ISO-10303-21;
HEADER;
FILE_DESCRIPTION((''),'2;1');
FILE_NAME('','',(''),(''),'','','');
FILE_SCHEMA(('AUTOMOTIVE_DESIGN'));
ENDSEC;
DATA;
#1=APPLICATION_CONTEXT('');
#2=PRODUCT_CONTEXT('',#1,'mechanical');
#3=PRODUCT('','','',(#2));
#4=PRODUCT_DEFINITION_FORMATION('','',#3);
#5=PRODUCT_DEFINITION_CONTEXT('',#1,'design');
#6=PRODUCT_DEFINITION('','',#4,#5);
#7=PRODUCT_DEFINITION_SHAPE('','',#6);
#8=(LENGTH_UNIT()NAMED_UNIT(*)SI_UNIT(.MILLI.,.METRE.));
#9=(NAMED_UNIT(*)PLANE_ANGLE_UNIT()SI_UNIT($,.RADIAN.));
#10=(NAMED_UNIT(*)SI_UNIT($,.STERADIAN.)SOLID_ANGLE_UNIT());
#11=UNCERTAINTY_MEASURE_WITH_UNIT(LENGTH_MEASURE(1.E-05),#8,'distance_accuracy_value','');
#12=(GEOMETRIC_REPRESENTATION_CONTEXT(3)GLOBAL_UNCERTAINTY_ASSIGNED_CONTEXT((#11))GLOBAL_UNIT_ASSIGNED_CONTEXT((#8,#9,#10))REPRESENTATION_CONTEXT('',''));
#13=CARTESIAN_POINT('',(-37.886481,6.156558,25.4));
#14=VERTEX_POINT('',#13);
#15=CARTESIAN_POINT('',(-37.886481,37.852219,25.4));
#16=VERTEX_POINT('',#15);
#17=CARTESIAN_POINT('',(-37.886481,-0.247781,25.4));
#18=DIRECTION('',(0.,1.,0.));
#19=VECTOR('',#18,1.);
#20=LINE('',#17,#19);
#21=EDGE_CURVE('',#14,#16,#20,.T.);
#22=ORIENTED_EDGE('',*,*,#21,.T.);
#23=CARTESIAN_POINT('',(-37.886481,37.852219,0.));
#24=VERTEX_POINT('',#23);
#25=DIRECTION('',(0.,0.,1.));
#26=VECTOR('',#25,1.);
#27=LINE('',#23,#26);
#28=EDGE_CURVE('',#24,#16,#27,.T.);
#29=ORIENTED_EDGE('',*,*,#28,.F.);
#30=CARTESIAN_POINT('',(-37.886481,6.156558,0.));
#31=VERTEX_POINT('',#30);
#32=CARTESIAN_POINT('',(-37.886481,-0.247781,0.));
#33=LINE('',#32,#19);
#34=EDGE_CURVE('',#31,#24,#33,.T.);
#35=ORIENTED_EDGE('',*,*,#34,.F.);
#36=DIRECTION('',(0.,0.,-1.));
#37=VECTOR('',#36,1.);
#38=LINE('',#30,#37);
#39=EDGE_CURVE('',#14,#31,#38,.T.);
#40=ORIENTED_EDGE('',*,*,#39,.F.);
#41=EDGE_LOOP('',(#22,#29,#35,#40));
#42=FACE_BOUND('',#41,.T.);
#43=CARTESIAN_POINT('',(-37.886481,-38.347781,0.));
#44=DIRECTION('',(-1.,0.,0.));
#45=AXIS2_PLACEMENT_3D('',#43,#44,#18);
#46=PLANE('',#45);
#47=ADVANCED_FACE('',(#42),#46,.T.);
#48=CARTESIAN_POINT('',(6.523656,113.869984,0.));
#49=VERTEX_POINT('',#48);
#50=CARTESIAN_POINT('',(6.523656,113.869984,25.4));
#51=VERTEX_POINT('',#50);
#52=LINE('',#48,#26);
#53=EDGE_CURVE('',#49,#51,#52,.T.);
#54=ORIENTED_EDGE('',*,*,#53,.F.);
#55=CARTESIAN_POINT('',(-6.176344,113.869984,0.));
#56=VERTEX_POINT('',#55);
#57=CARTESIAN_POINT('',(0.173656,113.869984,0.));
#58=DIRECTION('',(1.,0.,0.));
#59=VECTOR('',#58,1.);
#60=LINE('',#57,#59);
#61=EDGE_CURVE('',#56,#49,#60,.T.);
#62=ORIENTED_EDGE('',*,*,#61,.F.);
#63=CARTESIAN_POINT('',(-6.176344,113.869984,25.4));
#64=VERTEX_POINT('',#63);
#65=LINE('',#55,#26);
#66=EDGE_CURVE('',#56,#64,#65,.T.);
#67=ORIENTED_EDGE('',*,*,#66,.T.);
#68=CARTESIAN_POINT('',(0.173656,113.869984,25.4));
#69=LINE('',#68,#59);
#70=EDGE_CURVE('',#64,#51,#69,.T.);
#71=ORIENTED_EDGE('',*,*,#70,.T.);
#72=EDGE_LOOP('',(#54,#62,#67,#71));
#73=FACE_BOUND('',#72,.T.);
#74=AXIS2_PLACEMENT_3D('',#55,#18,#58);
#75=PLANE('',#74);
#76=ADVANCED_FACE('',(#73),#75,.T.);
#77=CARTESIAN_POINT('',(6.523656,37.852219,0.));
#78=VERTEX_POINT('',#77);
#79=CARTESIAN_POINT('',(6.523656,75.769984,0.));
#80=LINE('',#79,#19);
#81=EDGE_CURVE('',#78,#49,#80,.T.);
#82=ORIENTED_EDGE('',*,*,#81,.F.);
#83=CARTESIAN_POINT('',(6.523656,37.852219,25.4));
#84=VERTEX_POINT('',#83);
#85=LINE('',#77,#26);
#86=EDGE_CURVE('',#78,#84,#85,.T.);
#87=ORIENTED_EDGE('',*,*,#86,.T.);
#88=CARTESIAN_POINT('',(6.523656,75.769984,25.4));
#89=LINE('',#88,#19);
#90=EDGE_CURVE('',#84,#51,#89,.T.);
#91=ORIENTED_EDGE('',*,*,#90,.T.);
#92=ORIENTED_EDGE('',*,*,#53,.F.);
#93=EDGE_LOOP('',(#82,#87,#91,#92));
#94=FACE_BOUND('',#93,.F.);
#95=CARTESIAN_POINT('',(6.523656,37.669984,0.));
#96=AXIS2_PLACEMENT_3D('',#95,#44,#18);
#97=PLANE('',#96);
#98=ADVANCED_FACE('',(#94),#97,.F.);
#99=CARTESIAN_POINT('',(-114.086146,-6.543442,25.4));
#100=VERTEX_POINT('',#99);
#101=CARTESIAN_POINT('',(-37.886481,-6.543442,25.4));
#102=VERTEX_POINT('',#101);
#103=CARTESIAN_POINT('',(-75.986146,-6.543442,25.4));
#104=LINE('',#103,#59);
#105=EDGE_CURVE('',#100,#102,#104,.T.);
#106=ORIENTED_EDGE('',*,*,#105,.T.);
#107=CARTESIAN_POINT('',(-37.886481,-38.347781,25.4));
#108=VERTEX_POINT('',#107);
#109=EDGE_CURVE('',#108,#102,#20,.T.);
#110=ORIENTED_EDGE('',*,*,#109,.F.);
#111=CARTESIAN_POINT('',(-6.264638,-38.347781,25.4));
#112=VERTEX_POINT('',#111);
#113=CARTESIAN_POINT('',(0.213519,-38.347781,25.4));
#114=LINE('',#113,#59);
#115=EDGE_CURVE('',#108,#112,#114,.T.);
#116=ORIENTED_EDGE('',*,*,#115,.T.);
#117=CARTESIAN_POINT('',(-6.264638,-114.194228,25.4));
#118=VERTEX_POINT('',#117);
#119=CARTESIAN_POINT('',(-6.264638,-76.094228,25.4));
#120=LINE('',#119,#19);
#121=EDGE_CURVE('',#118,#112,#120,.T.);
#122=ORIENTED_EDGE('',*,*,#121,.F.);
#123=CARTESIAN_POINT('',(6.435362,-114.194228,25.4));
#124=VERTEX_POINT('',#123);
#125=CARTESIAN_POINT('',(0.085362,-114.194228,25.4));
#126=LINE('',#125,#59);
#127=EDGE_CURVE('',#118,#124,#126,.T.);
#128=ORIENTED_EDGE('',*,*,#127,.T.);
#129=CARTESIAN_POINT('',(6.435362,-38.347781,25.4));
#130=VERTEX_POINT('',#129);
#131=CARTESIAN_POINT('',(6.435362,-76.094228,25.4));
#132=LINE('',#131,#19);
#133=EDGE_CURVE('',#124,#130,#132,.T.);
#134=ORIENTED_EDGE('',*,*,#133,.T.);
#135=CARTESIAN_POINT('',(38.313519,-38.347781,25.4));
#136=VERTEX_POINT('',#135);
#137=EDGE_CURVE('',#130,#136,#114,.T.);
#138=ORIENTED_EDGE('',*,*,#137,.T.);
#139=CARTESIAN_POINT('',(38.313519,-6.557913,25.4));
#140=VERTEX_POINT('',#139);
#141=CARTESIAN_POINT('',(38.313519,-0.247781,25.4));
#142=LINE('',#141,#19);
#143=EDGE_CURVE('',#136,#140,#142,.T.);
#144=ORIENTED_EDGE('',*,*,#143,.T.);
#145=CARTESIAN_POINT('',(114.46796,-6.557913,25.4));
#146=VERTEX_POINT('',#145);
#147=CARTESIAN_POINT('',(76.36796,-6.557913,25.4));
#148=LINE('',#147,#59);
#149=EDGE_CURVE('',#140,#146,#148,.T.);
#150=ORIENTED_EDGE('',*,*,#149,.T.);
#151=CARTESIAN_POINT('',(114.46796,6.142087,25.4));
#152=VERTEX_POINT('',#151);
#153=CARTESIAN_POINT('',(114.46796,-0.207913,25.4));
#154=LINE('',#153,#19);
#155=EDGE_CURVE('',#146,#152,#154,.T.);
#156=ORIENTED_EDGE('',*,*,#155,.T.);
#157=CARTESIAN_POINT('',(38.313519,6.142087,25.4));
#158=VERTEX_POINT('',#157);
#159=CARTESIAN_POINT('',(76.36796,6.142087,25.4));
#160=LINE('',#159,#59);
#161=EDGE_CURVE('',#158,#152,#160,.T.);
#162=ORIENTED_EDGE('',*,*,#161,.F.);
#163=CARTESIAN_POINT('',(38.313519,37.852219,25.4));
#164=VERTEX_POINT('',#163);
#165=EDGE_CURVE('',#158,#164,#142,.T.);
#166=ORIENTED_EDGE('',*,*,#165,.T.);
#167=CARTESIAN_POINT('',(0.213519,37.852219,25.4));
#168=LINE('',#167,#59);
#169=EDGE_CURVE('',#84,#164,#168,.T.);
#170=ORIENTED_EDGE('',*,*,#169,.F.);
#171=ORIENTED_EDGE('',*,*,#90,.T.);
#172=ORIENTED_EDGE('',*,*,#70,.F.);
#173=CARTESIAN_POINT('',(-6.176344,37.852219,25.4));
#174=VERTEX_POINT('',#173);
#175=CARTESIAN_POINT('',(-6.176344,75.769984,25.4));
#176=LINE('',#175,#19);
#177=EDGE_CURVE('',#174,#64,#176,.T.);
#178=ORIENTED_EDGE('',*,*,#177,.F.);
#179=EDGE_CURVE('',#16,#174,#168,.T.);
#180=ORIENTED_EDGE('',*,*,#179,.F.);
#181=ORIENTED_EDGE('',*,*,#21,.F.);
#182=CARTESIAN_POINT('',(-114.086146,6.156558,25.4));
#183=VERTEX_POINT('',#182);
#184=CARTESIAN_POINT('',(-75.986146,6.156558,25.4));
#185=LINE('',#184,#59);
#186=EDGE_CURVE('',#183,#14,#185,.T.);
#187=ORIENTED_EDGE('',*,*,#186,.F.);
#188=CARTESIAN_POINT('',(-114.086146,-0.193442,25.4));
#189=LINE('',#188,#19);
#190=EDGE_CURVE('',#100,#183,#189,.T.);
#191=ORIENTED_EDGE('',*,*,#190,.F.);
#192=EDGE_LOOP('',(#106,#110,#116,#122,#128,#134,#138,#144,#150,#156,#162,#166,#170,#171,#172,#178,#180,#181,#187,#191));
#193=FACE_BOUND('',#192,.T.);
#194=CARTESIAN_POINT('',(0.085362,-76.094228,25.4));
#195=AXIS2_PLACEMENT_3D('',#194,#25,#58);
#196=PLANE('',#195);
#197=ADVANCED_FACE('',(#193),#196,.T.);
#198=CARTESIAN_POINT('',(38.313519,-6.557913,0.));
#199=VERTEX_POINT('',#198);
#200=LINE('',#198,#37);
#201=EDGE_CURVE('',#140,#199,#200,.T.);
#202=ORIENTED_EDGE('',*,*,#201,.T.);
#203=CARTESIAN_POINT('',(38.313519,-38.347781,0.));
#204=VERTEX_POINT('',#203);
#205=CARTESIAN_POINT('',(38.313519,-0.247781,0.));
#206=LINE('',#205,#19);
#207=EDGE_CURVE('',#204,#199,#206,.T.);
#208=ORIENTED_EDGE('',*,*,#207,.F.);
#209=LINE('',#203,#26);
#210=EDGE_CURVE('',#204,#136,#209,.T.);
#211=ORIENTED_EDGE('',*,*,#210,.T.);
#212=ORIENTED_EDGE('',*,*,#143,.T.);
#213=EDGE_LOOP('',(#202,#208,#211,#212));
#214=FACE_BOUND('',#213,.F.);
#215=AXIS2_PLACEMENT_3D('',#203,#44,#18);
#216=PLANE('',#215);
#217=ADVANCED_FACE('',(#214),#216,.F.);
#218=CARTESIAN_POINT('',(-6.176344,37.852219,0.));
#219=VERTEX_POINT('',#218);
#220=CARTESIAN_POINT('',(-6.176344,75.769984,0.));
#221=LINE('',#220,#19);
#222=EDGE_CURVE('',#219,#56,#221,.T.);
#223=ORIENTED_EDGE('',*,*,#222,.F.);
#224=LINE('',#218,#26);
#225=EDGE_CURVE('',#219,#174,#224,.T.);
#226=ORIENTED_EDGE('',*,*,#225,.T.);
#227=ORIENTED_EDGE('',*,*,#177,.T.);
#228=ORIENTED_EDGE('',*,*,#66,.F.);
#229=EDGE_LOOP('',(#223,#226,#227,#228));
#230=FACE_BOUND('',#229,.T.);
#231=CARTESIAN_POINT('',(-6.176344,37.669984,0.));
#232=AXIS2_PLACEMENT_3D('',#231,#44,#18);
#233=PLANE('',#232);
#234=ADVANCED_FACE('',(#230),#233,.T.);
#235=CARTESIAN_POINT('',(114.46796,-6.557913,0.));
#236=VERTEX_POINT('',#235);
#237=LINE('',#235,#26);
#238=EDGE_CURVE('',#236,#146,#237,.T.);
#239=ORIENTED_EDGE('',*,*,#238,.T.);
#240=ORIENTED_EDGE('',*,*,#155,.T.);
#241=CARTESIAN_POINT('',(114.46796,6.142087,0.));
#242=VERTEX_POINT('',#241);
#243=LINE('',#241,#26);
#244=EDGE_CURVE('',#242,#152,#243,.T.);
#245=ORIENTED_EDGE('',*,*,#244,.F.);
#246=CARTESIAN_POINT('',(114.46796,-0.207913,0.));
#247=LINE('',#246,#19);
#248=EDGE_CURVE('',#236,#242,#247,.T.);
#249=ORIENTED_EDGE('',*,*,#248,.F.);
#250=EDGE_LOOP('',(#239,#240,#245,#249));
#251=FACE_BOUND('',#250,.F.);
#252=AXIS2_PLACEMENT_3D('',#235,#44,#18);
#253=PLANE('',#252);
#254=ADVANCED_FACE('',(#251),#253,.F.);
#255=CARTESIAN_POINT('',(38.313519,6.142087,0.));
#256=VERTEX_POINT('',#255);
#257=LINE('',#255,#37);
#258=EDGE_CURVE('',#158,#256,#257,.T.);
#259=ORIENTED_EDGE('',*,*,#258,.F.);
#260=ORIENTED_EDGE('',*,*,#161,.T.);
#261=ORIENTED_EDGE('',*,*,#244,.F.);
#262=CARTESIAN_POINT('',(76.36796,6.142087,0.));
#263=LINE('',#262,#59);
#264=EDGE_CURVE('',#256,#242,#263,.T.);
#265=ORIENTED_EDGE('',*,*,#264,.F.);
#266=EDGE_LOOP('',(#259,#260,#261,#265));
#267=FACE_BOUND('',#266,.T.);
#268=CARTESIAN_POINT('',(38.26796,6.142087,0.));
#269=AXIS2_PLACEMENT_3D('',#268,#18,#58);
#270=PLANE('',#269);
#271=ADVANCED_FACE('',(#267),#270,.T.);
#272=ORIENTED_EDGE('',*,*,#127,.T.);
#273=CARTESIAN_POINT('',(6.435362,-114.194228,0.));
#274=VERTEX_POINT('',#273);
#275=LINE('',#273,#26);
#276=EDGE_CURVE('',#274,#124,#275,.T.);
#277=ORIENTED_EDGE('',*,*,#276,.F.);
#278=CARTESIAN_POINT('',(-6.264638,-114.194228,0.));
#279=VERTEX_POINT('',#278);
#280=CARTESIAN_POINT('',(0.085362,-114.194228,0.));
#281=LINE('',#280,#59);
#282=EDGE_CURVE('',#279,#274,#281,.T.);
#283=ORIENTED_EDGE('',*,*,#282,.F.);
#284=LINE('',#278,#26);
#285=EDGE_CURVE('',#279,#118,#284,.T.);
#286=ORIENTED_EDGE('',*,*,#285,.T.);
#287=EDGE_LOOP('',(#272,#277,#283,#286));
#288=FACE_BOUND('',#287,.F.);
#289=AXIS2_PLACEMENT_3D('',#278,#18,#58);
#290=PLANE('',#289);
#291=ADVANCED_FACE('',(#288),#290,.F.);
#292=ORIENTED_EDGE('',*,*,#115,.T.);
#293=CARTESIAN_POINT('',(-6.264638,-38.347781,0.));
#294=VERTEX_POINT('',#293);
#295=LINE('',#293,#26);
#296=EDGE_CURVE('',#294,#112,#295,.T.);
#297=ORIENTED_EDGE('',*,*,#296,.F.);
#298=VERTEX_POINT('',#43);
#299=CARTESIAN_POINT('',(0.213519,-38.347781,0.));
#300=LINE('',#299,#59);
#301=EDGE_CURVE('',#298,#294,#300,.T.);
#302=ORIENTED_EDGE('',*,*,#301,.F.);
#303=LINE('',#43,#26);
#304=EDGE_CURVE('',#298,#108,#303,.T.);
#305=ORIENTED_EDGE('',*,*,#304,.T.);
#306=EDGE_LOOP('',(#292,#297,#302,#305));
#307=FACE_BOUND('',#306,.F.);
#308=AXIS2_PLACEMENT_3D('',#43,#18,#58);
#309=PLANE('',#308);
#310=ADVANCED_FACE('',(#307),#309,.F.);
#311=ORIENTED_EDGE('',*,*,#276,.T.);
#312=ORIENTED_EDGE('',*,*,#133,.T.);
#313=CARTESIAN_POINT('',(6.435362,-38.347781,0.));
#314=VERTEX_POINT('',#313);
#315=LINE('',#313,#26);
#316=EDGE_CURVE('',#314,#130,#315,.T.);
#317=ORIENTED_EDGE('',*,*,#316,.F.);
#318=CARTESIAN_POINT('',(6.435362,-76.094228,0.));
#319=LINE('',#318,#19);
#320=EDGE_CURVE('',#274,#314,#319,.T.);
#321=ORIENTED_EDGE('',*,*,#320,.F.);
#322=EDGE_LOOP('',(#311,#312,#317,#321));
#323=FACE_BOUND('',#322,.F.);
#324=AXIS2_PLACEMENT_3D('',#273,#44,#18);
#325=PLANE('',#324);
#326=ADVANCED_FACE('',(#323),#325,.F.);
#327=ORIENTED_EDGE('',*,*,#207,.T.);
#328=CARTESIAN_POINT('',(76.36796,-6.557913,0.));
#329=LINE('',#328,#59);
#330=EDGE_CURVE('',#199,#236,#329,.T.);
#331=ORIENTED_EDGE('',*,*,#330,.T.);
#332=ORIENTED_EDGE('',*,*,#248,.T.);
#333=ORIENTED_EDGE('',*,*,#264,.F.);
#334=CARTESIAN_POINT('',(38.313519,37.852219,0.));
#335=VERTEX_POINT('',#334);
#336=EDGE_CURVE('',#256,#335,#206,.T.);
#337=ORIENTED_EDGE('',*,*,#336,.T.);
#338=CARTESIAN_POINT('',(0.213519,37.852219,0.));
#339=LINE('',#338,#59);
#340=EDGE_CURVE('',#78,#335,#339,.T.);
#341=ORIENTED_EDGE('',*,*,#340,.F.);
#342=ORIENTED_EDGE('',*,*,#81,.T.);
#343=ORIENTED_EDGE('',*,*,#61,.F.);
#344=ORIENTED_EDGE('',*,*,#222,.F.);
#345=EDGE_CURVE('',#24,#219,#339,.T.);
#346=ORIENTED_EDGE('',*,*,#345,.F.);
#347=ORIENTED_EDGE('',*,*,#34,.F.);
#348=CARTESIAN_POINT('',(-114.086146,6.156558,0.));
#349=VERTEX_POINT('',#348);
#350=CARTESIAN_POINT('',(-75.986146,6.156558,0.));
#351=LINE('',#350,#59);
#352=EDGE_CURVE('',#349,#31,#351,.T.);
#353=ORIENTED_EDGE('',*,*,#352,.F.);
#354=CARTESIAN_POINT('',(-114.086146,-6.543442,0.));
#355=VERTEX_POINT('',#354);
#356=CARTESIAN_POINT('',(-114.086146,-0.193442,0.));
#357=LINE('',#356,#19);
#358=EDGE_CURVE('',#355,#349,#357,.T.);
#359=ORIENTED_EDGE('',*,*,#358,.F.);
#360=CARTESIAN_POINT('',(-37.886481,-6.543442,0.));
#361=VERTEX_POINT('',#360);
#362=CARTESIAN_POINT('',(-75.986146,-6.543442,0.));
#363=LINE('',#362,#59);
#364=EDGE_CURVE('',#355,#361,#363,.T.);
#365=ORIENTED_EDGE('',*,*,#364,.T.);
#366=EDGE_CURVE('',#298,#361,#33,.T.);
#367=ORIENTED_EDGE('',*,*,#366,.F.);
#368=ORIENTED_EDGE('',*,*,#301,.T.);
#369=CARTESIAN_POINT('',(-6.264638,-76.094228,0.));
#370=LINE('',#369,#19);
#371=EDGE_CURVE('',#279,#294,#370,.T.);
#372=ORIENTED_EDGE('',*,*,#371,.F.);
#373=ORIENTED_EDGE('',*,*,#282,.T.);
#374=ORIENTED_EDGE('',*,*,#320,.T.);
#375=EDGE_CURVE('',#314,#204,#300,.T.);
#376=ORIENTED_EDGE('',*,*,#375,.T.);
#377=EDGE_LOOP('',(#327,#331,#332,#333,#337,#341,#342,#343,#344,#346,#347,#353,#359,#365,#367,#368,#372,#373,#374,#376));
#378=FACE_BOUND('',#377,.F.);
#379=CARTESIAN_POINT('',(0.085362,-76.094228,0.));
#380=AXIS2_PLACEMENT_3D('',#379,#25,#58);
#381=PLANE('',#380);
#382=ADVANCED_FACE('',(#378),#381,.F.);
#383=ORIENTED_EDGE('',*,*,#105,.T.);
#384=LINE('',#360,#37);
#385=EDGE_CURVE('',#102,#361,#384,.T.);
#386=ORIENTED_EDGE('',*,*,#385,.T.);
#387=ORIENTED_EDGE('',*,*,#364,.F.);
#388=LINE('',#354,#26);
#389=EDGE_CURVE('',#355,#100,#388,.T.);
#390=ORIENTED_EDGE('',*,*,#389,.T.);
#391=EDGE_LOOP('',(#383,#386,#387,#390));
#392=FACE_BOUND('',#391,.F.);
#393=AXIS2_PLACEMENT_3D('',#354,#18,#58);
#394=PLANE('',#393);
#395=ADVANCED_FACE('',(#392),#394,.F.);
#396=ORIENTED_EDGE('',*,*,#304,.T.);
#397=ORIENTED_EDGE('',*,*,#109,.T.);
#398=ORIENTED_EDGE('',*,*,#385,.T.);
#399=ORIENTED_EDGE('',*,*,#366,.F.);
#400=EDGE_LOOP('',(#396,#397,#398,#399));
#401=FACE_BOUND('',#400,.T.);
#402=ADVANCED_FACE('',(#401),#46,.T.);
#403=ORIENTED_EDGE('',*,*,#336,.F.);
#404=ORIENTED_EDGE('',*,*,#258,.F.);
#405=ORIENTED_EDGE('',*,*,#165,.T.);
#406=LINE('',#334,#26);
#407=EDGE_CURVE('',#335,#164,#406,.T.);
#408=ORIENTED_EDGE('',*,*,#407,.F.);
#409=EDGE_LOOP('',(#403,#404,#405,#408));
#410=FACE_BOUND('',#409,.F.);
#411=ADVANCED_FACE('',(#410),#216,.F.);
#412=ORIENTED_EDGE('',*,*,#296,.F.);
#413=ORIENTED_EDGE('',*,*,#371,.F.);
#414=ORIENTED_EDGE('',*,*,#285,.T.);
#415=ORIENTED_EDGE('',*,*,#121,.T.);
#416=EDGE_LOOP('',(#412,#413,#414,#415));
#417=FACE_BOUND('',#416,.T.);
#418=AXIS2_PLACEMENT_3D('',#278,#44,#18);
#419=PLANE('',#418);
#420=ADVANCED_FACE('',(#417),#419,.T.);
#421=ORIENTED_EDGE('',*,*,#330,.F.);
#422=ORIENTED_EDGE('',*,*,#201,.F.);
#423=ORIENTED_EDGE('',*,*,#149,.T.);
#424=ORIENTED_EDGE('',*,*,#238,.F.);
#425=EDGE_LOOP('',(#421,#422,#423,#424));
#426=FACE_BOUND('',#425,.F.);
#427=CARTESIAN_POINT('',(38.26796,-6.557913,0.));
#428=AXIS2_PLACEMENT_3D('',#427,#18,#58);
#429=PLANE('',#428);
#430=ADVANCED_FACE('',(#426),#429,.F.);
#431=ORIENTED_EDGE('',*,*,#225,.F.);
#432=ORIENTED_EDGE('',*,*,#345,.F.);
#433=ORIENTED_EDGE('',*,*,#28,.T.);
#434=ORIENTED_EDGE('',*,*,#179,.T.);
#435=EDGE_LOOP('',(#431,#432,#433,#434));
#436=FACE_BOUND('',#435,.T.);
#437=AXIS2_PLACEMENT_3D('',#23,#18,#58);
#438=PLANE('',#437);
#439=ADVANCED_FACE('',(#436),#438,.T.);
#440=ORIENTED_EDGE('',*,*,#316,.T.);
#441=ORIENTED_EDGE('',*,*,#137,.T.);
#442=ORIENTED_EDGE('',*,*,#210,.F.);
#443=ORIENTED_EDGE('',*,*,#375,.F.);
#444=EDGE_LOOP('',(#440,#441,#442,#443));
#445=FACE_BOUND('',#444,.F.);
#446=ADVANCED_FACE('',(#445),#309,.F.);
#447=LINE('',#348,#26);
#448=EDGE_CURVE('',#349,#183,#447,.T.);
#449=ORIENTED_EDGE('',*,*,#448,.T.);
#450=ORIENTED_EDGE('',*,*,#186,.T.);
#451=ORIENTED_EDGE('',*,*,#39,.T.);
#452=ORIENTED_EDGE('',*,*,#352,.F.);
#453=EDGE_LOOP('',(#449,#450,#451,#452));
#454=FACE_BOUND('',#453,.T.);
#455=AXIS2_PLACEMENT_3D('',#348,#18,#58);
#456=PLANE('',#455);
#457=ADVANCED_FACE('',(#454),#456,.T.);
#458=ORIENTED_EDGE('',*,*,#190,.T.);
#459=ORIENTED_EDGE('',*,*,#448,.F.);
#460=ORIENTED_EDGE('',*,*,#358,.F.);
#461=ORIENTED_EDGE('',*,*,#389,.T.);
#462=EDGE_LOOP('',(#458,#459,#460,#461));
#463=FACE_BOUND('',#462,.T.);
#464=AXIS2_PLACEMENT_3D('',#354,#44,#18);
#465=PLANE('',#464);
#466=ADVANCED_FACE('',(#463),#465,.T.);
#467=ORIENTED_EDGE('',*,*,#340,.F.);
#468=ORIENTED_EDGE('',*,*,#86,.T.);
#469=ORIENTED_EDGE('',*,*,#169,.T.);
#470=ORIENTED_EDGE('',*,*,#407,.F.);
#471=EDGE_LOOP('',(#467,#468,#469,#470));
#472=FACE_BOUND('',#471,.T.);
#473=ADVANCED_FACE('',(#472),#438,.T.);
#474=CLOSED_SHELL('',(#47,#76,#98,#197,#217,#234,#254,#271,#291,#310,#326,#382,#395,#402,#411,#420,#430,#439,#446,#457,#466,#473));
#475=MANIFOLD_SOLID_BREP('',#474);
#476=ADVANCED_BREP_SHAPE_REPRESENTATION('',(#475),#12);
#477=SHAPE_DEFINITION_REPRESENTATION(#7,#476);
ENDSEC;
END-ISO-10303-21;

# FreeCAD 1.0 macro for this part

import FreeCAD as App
import Part
import Sketcher
Q = App.Units.Quantity


def add_polygon(sketch, points):
    """Adds a closed chain of lines whose ends are joined by coincident constraints."""
    first, n = sketch.GeometryCount, len(points)
    for a, b in zip(points, points[1:] + points[:1]):
        sketch.addGeometry(Part.LineSegment(App.Vector(*a, 0), App.Vector(*b, 0)), False)
    for i in range(n):
        sketch.addConstraint(Sketcher.Constraint("Coincident", first + i, 2, first + (i + 1) % n, 1))

doc = App.newDocument("Part")
body = doc.addObject("PartDesign::Body", "Body")

sketch1 = body.newObject("Sketcher::SketchObject", "Sketch")
sketch1.AttachmentSupport = (doc.getObject("XY_Plane"), [""])
sketch1.MapMode = "FlatFace"
add_polygon(sketch1, [(-38, 38), (-38, -38), (38, -38), (38, 38)])
sketch1.addConstraint([
    Sketcher.Constraint("Vertical", 0),
    Sketcher.Constraint("Horizontal", 1),
    Sketcher.Constraint("Vertical", 2),
    Sketcher.Constraint("Horizontal", 3),
    Sketcher.Constraint("Equal", 3, 0),
    Sketcher.Constraint("DistanceX", 1, 1, 1, 2, Q("3 in")),
    Sketcher.Constraint("DistanceX", 0, 2, -1, 1, 37.886481),
    Sketcher.Constraint("DistanceY", 0, 2, -1, 1, 38.347781),
])
pad1 = body.newObject("PartDesign::Pad", "Pad")
pad1.Profile = sketch1
pad1.Length = Q("1 in")

sketch2 = body.newObject("Sketcher::SketchObject", "Sketch001")
sketch2.AttachmentSupport = (doc.getObject("XY_Plane"), [""])
sketch2.MapMode = "FlatFace"
add_polygon(sketch2, [(-6, 114), (-6, 38), (7, 38), (7, 114)])
sketch2.addConstraint([
    Sketcher.Constraint("Vertical", 0),
    Sketcher.Constraint("Horizontal", 1),
    Sketcher.Constraint("Vertical", 2),
    Sketcher.Constraint("Horizontal", 3),
    Sketcher.Constraint("DistanceY", 0, 2, 0, 1, Q("3 in")),
    Sketcher.Constraint("DistanceX", 1, 1, 1, 2, Q("0.5 in")),
    Sketcher.Constraint("DistanceX", 0, 2, -1, 1, 6.176344),
    Sketcher.Constraint("DistanceY", -1, 1, 0, 2, 37.669984),
])
pad2 = body.newObject("PartDesign::Pad", "Pad001")
pad2.Profile = sketch2
pad2.Length = Q("1 in")

sketch3 = body.newObject("Sketcher::SketchObject", "Sketch002")
sketch3.AttachmentSupport = (doc.getObject("XY_Plane"), [""])
sketch3.MapMode = "FlatFace"
add_polygon(sketch3, [(-114, 6), (-114, -7), (-38, -7), (-38, 6)])
sketch3.addConstraint([
    Sketcher.Constraint("Vertical", 0),
    Sketcher.Constraint("Horizontal", 1),
    Sketcher.Constraint("Vertical", 2),
    Sketcher.Constraint("Horizontal", 3),
    Sketcher.Constraint("DistanceX", 1, 1, 1, 2, Q("3 in")),
    Sketcher.Constraint("DistanceY", 0, 2, 0, 1, Q("0.5 in")),
    Sketcher.Constraint("DistanceY", 0, 2, -1, 1, 6.543442),
    Sketcher.Constraint("DistanceX", 0, 2, -1, 1, 114.086146),
])
pad3 = body.newObject("PartDesign::Pad", "Pad002")
pad3.Profile = sketch3
pad3.Length = Q("1 in")

sketch4 = body.newObject("Sketcher::SketchObject", "Sketch003")
sketch4.AttachmentSupport = (doc.getObject("XY_Plane"), [""])
sketch4.MapMode = "FlatFace"
add_polygon(sketch4, [(38, 6), (38, -7), (114, -7), (114, 6)])
sketch4.addConstraint([
    Sketcher.Constraint("Vertical", 0),
    Sketcher.Constraint("Horizontal", 1),
    Sketcher.Constraint("Vertical", 2),
    Sketcher.Constraint("Horizontal", 3),
    Sketcher.Constraint("DistanceX", 1, 1, 1, 2, Q("3 in")),
    Sketcher.Constraint("DistanceY", 0, 2, 0, 1, Q("0.5 in")),
    Sketcher.Constraint("DistanceX", -1, 1, 0, 2, 38.26796),
    Sketcher.Constraint("DistanceY", 0, 2, -1, 1, 6.557913),
])
pad4 = body.newObject("PartDesign::Pad", "Pad003")
pad4.Profile = sketch4
pad4.Length = Q("1 in")

sketch5 = body.newObject("Sketcher::SketchObject", "Sketch004")
sketch5.AttachmentSupport = (doc.getObject("XY_Plane"), [""])
sketch5.MapMode = "FlatFace"
add_polygon(sketch5, [(-6, -38), (-6, -114), (6, -114), (6, -38)])
sketch5.addConstraint([
    Sketcher.Constraint("Vertical", 0),
    Sketcher.Constraint("Horizontal", 1),
    Sketcher.Constraint("Vertical", 2),
    Sketcher.Constraint("Horizontal", 3),
    Sketcher.Constraint("DistanceY", 0, 2, 0, 1, Q("3 in")),
    Sketcher.Constraint("DistanceX", 1, 1, 1, 2, Q("0.5 in")),
    Sketcher.Constraint("DistanceX", -1, 1, 1, 2, 6.435362),
    Sketcher.Constraint("DistanceY", 0, 2, -1, 1, 114.194228),
])
pad5 = body.newObject("PartDesign::Pad", "Pad004")
pad5.Profile = sketch5
pad5.Length = Q("1 in")

doc.recompute()
